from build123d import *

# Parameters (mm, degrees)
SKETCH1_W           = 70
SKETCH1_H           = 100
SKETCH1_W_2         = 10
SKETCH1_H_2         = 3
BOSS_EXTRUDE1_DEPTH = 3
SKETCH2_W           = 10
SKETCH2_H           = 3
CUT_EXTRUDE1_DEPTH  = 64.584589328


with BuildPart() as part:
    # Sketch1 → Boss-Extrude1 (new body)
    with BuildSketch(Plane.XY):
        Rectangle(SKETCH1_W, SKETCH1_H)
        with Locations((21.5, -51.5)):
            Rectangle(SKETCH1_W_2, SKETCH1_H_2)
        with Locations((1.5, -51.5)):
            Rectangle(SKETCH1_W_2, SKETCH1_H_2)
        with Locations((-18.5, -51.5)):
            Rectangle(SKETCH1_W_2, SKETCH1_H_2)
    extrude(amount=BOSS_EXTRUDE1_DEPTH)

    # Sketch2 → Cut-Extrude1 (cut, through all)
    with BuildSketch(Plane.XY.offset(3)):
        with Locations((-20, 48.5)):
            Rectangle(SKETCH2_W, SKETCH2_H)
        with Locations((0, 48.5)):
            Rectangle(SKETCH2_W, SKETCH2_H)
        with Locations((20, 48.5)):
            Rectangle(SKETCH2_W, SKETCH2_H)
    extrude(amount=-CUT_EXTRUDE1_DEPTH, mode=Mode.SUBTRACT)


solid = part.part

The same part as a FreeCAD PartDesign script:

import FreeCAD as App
import Part
import Sketcher

V = App.Vector
Q = App.Units.Quantity

doc = App.newDocument("Part")
body = doc.addObject("PartDesign::Body", "Body")

sketch1 = body.newObject("Sketcher::SketchObject", "Sketch")
sketch1.AttachmentSupport = (doc.getObject("XY_Plane"), [""])
sketch1.MapMode = "FlatFace"
sketch1.addGeometry([
    Part.LineSegment(V(-35, 50, 0), V(-35, -50, 0)),
    Part.LineSegment(V(-35, -50, 0), V(-23.5, -50, 0)),
    Part.LineSegment(V(-23.5, -50, 0), V(-23.5, -53, 0)),
    Part.LineSegment(V(-23.5, -53, 0), V(-13.5, -53, 0)),
    Part.LineSegment(V(-13.5, -53, 0), V(-13.5, -50, 0)),
    Part.LineSegment(V(-13.5, -50, 0), V(-3.5, -50, 0)),
    Part.LineSegment(V(-3.5, -50, 0), V(-3.5, -53, 0)),
    Part.LineSegment(V(-3.5, -53, 0), V(6.5, -53, 0)),
    Part.LineSegment(V(6.5, -53, 0), V(6.5, -50, 0)),
    Part.LineSegment(V(6.5, -50, 0), V(16.5, -50, 0)),
    Part.LineSegment(V(16.5, -50, 0), V(16.5, -53, 0)),
    Part.LineSegment(V(16.5, -53, 0), V(26.5, -53, 0)),
    Part.LineSegment(V(26.5, -53, 0), V(26.5, -50, 0)),
    Part.LineSegment(V(26.5, -50, 0), V(35, -50, 0)),
    Part.LineSegment(V(35, -50, 0), V(35, 50, 0)),
    Part.LineSegment(V(35, 50, 0), V(-35, 50, 0)),
], False)
sketch1.addConstraint([
    Sketcher.Constraint("Coincident", 0, 2, 1, 1),
    Sketcher.Constraint("Coincident", 1, 2, 2, 1),
    Sketcher.Constraint("Coincident", 2, 2, 3, 1),
    Sketcher.Constraint("Coincident", 3, 2, 4, 1),
    Sketcher.Constraint("Coincident", 4, 2, 5, 1),
    Sketcher.Constraint("Coincident", 5, 2, 6, 1),
    Sketcher.Constraint("Coincident", 6, 2, 7, 1),
    Sketcher.Constraint("Coincident", 7, 2, 8, 1),
    Sketcher.Constraint("Coincident", 8, 2, 9, 1),
    Sketcher.Constraint("Coincident", 9, 2, 10, 1),
    Sketcher.Constraint("Coincident", 10, 2, 11, 1),
    Sketcher.Constraint("Coincident", 11, 2, 12, 1),
    Sketcher.Constraint("Coincident", 12, 2, 13, 1),
    Sketcher.Constraint("Coincident", 13, 2, 14, 1),
    Sketcher.Constraint("Coincident", 14, 2, 15, 1),
    Sketcher.Constraint("Coincident", 15, 2, 0, 1),
    Sketcher.Constraint("Vertical", 0),
    Sketcher.Constraint("Horizontal", 1),
    Sketcher.Constraint("Vertical", 2),
    Sketcher.Constraint("Horizontal", 3),
    Sketcher.Constraint("Vertical", 4),
    Sketcher.Constraint("Horizontal", 5),
    Sketcher.Constraint("Vertical", 6),
    Sketcher.Constraint("Horizontal", 7),
    Sketcher.Constraint("Vertical", 8),
    Sketcher.Constraint("Horizontal", 9),
    Sketcher.Constraint("Vertical", 10),
    Sketcher.Constraint("Horizontal", 11),
    Sketcher.Constraint("Vertical", 12),
    Sketcher.Constraint("Horizontal", 13),
    Sketcher.Constraint("Vertical", 14),
    Sketcher.Constraint("Horizontal", 15),
    Sketcher.Constraint("Symmetric", 0, 2, 14, 2, -1, 1),
    Sketcher.Constraint("Horizontal", 1, 2, 4, 2),
    Sketcher.Constraint("Horizontal", 3, 2, 6, 2),
    Sketcher.Constraint("Horizontal", 5, 2, 8, 2),
    Sketcher.Constraint("Horizontal", 7, 2, 10, 2),
    Sketcher.Constraint("Horizontal", 9, 2, 12, 2),
    Sketcher.Constraint("Equal", 3, 5),
    Sketcher.Constraint("Equal", 5, 7),
    Sketcher.Constraint("Equal", 7, 9),
    Sketcher.Constraint("Equal", 9, 11),
    Sketcher.Constraint("DistanceX", 3, 1, 3, 2, Q("10 mm")),
    Sketcher.Constraint("DistanceX", 15, 2, 15, 1, Q("70 mm")),
    Sketcher.Constraint("DistanceY", 0, 2, 0, 1, Q("100 mm")),
    Sketcher.Constraint("DistanceY", 2, 2, 2, 1, Q("3 mm")),
    Sketcher.Constraint("DistanceX", 1, 1, 1, 2, Q("11.5 mm")),
])
pad1 = body.newObject("PartDesign::Pad", "Pad")
pad1.Profile = sketch1
pad1.Length = 3

sketch2 = body.newObject("Sketcher::SketchObject", "Sketch001")
sketch2.AttachmentSupport = (doc.getObject("XY_Plane"), [""])
sketch2.MapMode = "FlatFace"
sketch2.AttachmentOffset = App.Placement(V(0, 0, 3), App.Rotation())
sketch2.addGeometry([
    Part.LineSegment(V(-25, 50, 0), V(-25, 47, 0)),
    Part.LineSegment(V(-25, 47, 0), V(-15, 47, 0)),
    Part.LineSegment(V(-15, 47, 0), V(-15, 50, 0)),
    Part.LineSegment(V(-15, 50, 0), V(-25, 50, 0)),
    Part.LineSegment(V(-5, 50, 0), V(-5, 47, 0)),
    Part.LineSegment(V(-5, 47, 0), V(5, 47, 0)),
    Part.LineSegment(V(5, 47, 0), V(5, 50, 0)),
    Part.LineSegment(V(5, 50, 0), V(-5, 50, 0)),
    Part.LineSegment(V(15, 50, 0), V(15, 47, 0)),
    Part.LineSegment(V(15, 47, 0), V(25, 47, 0)),
    Part.LineSegment(V(25, 47, 0), V(25, 50, 0)),
    Part.LineSegment(V(25, 50, 0), V(15, 50, 0)),
], False)
sketch2.addConstraint([
    Sketcher.Constraint("Coincident", 0, 2, 1, 1),
    Sketcher.Constraint("Coincident", 1, 2, 2, 1),
    Sketcher.Constraint("Coincident", 2, 2, 3, 1),
    Sketcher.Constraint("Coincident", 3, 2, 0, 1),
    Sketcher.Constraint("Coincident", 4, 2, 5, 1),
    Sketcher.Constraint("Coincident", 5, 2, 6, 1),
    Sketcher.Constraint("Coincident", 6, 2, 7, 1),
    Sketcher.Constraint("Coincident", 7, 2, 4, 1),
    Sketcher.Constraint("Coincident", 8, 2, 9, 1),
    Sketcher.Constraint("Coincident", 9, 2, 10, 1),
    Sketcher.Constraint("Coincident", 10, 2, 11, 1),
    Sketcher.Constraint("Coincident", 11, 2, 8, 1),
    Sketcher.Constraint("Vertical", 0),
    Sketcher.Constraint("Horizontal", 1),
    Sketcher.Constraint("Vertical", 2),
    Sketcher.Constraint("Horizontal", 3),
    Sketcher.Constraint("Vertical", 4),
    Sketcher.Constraint("Horizontal", 5),
    Sketcher.Constraint("Vertical", 6),
    Sketcher.Constraint("Horizontal", 7),
    Sketcher.Constraint("Vertical", 8),
    Sketcher.Constraint("Horizontal", 9),
    Sketcher.Constraint("Vertical", 10),
    Sketcher.Constraint("Horizontal", 11),
    Sketcher.Constraint("Symmetric", 1, 2, 8, 2, -2),
    Sketcher.Constraint("Symmetric", 3, 2, 10, 2, -2),
    Sketcher.Constraint("Horizontal", 1, 2, 4, 2),
    Sketcher.Constraint("Horizontal", 3, 2, 6, 2),
    Sketcher.Constraint("Equal", 3, 5),
    Sketcher.Constraint("DistanceX", 1, 1, 1, 2, Q("10 mm")),
    Sketcher.Constraint("DistanceY", 0, 2, 0, 1, Q("3 mm")),
    Sketcher.Constraint("DistanceX", 0, 2, -1, 1, Q("25 mm")),
    Sketcher.Constraint("DistanceY", -1, 1, 0, 2, Q("47 mm")),
    Sketcher.Constraint("DistanceX", 4, 2, -1, 1, Q("5 mm")),
])
pocket1 = body.newObject("PartDesign::Pocket", "Pocket")
pocket1.Profile = sketch2
pocket1.Type = "ThroughAll"

doc.recompute()
